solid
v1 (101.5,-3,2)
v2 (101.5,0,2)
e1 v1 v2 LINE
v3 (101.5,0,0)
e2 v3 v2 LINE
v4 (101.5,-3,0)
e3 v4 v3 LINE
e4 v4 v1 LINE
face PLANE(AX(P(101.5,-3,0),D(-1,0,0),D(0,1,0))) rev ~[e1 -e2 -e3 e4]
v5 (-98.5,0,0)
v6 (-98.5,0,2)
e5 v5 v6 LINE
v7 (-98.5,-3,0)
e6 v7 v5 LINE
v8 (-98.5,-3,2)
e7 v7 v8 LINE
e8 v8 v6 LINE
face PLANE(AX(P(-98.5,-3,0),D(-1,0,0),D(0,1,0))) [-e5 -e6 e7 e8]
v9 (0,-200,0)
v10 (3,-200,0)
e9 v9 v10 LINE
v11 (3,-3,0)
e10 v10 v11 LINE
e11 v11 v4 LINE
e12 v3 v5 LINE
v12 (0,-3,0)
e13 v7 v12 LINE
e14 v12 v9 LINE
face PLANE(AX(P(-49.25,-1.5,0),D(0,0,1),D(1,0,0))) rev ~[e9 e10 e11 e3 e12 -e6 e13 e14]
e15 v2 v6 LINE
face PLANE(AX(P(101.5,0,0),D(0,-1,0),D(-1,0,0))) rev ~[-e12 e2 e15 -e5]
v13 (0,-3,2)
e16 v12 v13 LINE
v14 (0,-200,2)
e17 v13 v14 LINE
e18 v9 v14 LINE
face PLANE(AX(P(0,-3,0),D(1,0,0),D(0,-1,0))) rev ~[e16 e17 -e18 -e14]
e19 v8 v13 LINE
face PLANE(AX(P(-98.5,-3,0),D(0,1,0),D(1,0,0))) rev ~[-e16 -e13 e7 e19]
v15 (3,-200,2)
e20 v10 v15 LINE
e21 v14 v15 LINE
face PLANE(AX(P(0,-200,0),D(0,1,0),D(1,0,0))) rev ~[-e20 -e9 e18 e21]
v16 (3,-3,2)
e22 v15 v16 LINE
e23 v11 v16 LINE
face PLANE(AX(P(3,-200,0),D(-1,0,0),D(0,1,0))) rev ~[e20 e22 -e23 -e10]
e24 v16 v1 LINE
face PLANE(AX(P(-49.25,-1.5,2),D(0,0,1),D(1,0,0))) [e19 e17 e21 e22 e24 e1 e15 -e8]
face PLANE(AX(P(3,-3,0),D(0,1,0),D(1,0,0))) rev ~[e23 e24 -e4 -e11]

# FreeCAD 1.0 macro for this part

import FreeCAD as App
import Part
import Sketcher
from FreeCAD import Vector
Q = App.Units.Quantity

doc = App.newDocument("Part")
body = doc.addObject("PartDesign::Body", "Body")

sketch1 = doc.addObject("Sketcher::SketchObject", "Sketch")
body.addObject(sketch1)
sketch1.AttachmentSupport = (doc.XY_Plane, [""])
sketch1.MapMode = "FlatFace"
sketch1.addGeometry([
    Part.LineSegment(Vector(-98.5, 0, 0), Vector(-98.5, -3, 0)),
    Part.LineSegment(Vector(-98.5, -3, 0), Vector(0, -3, 0)),
    Part.LineSegment(Vector(0, -3, 0), Vector(0, -200, 0)),
    Part.LineSegment(Vector(0, -200, 0), Vector(3, -200, 0)),
    Part.LineSegment(Vector(3, -200, 0), Vector(3, -3, 0)),
    Part.LineSegment(Vector(3, -3, 0), Vector(101.5, -3, 0)),
    Part.LineSegment(Vector(101.5, -3, 0), Vector(101.5, 0, 0)),
    Part.LineSegment(Vector(101.5, 0, 0), Vector(-98.5, 0, 0)),
], False)
sketch1.addConstraint([
    Sketcher.Constraint("Coincident", 0, 2, 1, 1),
    Sketcher.Constraint("Coincident", 1, 2, 2, 1),
    Sketcher.Constraint("Coincident", 2, 2, 3, 1),
    Sketcher.Constraint("Coincident", 3, 2, 4, 1),
    Sketcher.Constraint("Coincident", 4, 2, 5, 1),
    Sketcher.Constraint("Coincident", 5, 2, 6, 1),
    Sketcher.Constraint("Coincident", 6, 2, 7, 1),
    Sketcher.Constraint("Coincident", 7, 2, 0, 1),
    Sketcher.Constraint("Vertical", 0),
    Sketcher.Constraint("Horizontal", 1),
    Sketcher.Constraint("Vertical", 2),
    Sketcher.Constraint("Horizontal", 3),
    Sketcher.Constraint("Vertical", 4),
    Sketcher.Constraint("Horizontal", 5),
    Sketcher.Constraint("Vertical", 6),
    Sketcher.Constraint("Horizontal", 7),
    Sketcher.Constraint("PointOnObject", 1, 2, -2),
    Sketcher.Constraint("PointOnObject", 6, 2, -1),
    Sketcher.Constraint("Horizontal", 1, 2, 4, 2),
    Sketcher.Constraint("Equal", 1, 5),
    Sketcher.Constraint("Equal", 3, 0),
    Sketcher.Constraint("DistanceX", 3, 1, 3, 2, Q("3 mm")),
    Sketcher.Constraint("DistanceX", 7, 2, 7, 1, Q("200 mm")),
    Sketcher.Constraint("DistanceY", 2, 2, 2, 1, Q("197 mm")),
])
pad1 = doc.addObject("PartDesign::Pad", "Pad")
body.addObject(pad1)
pad1.Profile = sketch1
pad1.Length = 2

doc.recompute()
